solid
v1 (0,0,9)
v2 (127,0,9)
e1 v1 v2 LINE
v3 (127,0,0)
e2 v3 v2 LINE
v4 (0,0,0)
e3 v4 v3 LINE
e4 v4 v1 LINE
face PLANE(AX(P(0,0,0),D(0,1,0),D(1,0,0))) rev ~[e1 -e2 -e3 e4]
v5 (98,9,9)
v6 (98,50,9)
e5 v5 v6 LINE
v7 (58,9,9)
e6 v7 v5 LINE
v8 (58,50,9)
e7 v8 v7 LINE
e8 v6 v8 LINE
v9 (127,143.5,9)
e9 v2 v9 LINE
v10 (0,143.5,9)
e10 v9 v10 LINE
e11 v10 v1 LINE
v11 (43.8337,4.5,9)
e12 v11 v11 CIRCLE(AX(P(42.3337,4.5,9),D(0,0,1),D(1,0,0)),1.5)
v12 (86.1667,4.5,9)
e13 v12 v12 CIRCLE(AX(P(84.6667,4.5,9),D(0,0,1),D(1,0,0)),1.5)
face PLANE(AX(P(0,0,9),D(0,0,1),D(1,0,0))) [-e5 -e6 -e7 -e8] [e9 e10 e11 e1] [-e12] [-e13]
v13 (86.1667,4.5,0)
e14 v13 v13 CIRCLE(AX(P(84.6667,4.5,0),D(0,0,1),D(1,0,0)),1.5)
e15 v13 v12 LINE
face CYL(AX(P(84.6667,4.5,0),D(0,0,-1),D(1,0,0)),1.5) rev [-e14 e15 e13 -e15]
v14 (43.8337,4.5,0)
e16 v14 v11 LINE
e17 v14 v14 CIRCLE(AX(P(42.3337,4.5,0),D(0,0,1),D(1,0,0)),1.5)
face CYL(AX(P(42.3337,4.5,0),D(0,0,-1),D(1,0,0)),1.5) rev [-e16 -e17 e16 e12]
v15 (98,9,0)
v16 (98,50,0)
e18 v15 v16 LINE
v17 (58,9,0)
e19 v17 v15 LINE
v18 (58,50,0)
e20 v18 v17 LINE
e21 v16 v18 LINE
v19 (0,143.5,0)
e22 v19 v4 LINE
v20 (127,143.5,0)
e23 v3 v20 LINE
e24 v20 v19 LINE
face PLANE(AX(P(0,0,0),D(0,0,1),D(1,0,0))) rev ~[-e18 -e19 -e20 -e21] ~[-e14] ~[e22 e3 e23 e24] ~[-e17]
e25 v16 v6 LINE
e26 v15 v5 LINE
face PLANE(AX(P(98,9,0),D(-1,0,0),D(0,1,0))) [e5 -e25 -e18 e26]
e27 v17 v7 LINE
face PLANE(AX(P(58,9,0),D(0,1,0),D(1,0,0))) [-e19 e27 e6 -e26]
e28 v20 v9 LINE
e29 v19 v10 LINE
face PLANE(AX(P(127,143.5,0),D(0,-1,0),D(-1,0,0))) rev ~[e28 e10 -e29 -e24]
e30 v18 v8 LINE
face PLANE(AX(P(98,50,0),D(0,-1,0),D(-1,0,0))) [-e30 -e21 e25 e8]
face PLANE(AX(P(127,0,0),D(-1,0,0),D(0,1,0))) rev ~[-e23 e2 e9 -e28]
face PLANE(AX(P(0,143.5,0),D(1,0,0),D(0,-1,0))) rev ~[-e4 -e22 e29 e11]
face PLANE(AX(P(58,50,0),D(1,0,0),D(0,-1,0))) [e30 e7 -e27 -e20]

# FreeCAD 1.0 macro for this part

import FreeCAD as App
import Part
import Sketcher

V = App.Vector
Q = App.Units.Quantity


def add_polygon(sketch, points):
    """Adds a closed chain of lines whose ends are joined by coincident constraints."""
    first, n = sketch.GeometryCount, len(points)
    for a, b in zip(points, points[1:] + points[:1]):
        sketch.addGeometry(Part.LineSegment(App.Vector(*a, 0), App.Vector(*b, 0)), False)
    for i in range(n):
        sketch.addConstraint(Sketcher.Constraint("Coincident", first + i, 2, first + (i + 1) % n, 1))

doc = App.newDocument("Part")
body = doc.addObject("PartDesign::Body", "Body")

# Sketch on XY plane
sketch1 = body.newObject("Sketcher::SketchObject", "Sketch")
sketch1.AttachmentSupport = (doc.getObject("XY_Plane"), [""])
sketch1.MapMode = "FlatFace"
add_polygon(sketch1, [(0, 143.5), (0, 0), (127, 0), (127, 143.5)])  # lines 0-3
sketch1.addGeometry(Part.Circle(V(42.3, 4.5, 0), V(0, 0, 1), 1.5), False)  # 4
sketch1.addGeometry(Part.Circle(V(84.7, 4.5, 0), V(0, 0, 1), 1.5), False)  # 5
add_polygon(sketch1, [(58, 50), (98, 50), (98, 9), (58, 9)])  # lines 6-9
sketch1.addConstraint(Sketcher.Constraint("Vertical", 0))
sketch1.addConstraint(Sketcher.Constraint("Horizontal", 1))
sketch1.addConstraint(Sketcher.Constraint("Vertical", 2))
sketch1.addConstraint(Sketcher.Constraint("Horizontal", 3))
sketch1.addConstraint(Sketcher.Constraint("Horizontal", 6))
sketch1.addConstraint(Sketcher.Constraint("Vertical", 7))
sketch1.addConstraint(Sketcher.Constraint("Horizontal", 8))
sketch1.addConstraint(Sketcher.Constraint("Vertical", 9))
sketch1.addConstraint(Sketcher.Constraint("Coincident", 0, 2, -1, 1))
sketch1.addConstraint(Sketcher.Constraint("Equal", 4, 5))
sketch1.addConstraint(Sketcher.Constraint("Horizontal", 4, 3, 5, 3))
sketch1.addConstraint(Sketcher.Constraint("Diameter", 4, Q("3 mm")))
sketch1.addConstraint(Sketcher.Constraint("DistanceX", 1, 1, 1, 2, Q("127 mm")))
sketch1.addConstraint(Sketcher.Constraint("DistanceX", 6, 1, 6, 2, Q("40 mm")))
sketch1.addConstraint(Sketcher.Constraint("DistanceY", 7, 2, 7, 1, Q("41 mm")))
sketch1.addConstraint(Sketcher.Constraint("DistanceY", 0, 2, 0, 1, Q("143.5 mm")))
sketch1.addConstraint(Sketcher.Constraint("DistanceY", -1, 1, 6, 2, Q("50 mm")))
sketch1.addConstraint(Sketcher.Constraint("DistanceX", 6, 2, 1, 2, Q("29 mm")))
sketch1.addConstraint(Sketcher.Constraint("DistanceY", -1, 1, 4, 3, Q("4.5 mm")))
sketch1.addConstraint(Sketcher.Constraint("DistanceX", 4, 3, 5, 3, Q("42.333 mm")))
sketch1.addConstraint(Sketcher.Constraint("DistanceX", -1, 1, 4, 3, Q("42.3337 mm")))
pad1 = body.newObject("PartDesign::Pad", "Pad")
pad1.Profile = sketch1
pad1.Length = 9

doc.recompute()
